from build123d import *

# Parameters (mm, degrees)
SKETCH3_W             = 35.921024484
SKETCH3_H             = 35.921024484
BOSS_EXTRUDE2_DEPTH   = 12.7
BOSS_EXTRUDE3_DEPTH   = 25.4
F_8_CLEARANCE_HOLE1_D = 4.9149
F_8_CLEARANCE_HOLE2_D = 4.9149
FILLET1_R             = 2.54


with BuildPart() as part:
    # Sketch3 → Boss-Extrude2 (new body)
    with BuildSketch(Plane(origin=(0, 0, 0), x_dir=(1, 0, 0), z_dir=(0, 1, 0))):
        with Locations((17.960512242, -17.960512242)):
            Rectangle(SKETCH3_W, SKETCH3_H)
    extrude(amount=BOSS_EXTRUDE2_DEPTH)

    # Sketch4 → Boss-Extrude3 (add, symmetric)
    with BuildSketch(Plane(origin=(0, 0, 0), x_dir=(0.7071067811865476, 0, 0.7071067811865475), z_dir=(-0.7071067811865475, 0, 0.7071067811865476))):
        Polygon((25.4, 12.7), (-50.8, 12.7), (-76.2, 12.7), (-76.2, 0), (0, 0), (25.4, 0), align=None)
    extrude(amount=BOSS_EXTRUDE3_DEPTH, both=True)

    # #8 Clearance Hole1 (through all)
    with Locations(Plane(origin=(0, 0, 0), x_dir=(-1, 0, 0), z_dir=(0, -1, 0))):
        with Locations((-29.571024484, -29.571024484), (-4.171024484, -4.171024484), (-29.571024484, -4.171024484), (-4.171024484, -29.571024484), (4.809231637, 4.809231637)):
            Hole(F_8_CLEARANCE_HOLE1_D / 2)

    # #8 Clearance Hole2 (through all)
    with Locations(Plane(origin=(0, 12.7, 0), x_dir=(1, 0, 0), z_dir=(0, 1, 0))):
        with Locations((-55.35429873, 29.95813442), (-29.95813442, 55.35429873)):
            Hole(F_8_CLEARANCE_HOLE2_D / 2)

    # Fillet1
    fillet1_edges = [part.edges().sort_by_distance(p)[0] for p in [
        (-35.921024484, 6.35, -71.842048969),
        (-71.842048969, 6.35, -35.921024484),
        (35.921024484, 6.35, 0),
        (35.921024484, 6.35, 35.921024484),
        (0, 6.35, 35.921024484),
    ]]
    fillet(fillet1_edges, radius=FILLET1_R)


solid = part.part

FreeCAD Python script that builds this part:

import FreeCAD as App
import Part
import Sketcher
from FreeCAD import Vector
Q = App.Units.Quantity


def edges_at(feature, points):
    """Names of the edges that pass closest to the given points."""
    edges = feature.Shape.Edges
    near = lambda p: min(range(len(edges)), key=lambda i: edges[i].distToShape(Part.Vertex(*p))[0])
    return sorted({f"Edge{near(p) + 1}" for p in points})

doc = App.newDocument("Part")
body = doc.addObject("PartDesign::Body", "Body")

# Sketch on XZ plane
sketch1 = body.newObject("Sketcher::SketchObject", "Sketch")
sketch1.AttachmentSupport = (doc.getObject("XZ_Plane"), [""])
sketch1.MapMode = "FlatFace"
sketch1.addGeometry([
    Part.LineSegment(Vector(0, 0, 0), Vector(0, 36, 0)),
    Part.LineSegment(Vector(0, 36, 0), Vector(36, 36, 0)),
    Part.LineSegment(Vector(36, 36, 0), Vector(36, 0, 0)),
    Part.LineSegment(Vector(36, 0, 0), Vector(0, 0, 0)),
], False)
sketch1.addConstraint([
    Sketcher.Constraint("Coincident", 0, 2, 1, 1),
    Sketcher.Constraint("Coincident", 1, 2, 2, 1),
    Sketcher.Constraint("Coincident", 2, 2, 3, 1),
    Sketcher.Constraint("Coincident", 3, 2, 0, 1),
    Sketcher.Constraint("Vertical", 0),
    Sketcher.Constraint("Horizontal", 1),
    Sketcher.Constraint("Vertical", 2),
    Sketcher.Constraint("Horizontal", 3),
    Sketcher.Constraint("Coincident", 3, 2, -1, 1),
    Sketcher.Constraint("Equal", 3, 0),
    Sketcher.Constraint("DistanceX", 1, 1, 1, 2, 35.921024),
])
pad1 = body.newObject("PartDesign::Pad", "Pad")
pad1.Profile = sketch1
pad1.Length = Q("0.5 in")
pad1.Reversed = True

# Sketch on an angled plane
sketch2 = body.newObject("Sketcher::SketchObject", "Sketch001")
sketch2.Placement = App.Placement(Vector(0, 0, 0), App.Rotation(Vector(0.707106781, 0, 0.707106781), Vector(0, 0.999999999, 0), Vector(-0.707106781, 0, 0.707106781), "ZXY"))
sketch2.addGeometry([
    Part.LineSegment(Vector(25, 13, 0), Vector(-76, 13, 0)),
    Part.LineSegment(Vector(-76, 13, 0), Vector(-76, 0, 0)),
    Part.LineSegment(Vector(-76, 0, 0), Vector(25, 0, 0)),
    Part.LineSegment(Vector(25, 0, 0), Vector(25, 13, 0)),
], False)
sketch2.addConstraint([
    Sketcher.Constraint("Coincident", 0, 2, 1, 1),
    Sketcher.Constraint("Coincident", 1, 2, 2, 1),
    Sketcher.Constraint("Coincident", 2, 2, 3, 1),
    Sketcher.Constraint("Coincident", 3, 2, 0, 1),
    Sketcher.Constraint("Horizontal", 0),
    Sketcher.Constraint("Vertical", 1),
    Sketcher.Constraint("Horizontal", 2),
    Sketcher.Constraint("Vertical", 3),
    Sketcher.Constraint("PointOnObject", 1, 2, -1),
    Sketcher.Constraint("DistanceX", 0, 2, 0, 1, Q("4 in")),
    Sketcher.Constraint("DistanceY", 1, 2, 1, 1, Q("0.5 in")),
    Sketcher.Constraint("DistanceX", 0, 2, -1, 1, Q("3 in")),
])
pad2 = body.newObject("PartDesign::Pad", "Pad001")
pad2.Profile = sketch2
pad2.Length = Q("2 in")
pad2.Midplane = True

# Sketch on XZ plane
sketch3 = body.newObject("Sketcher::SketchObject", "Sketch002")
sketch3.AttachmentSupport = (doc.getObject("XZ_Plane"), [""])
sketch3.MapMode = "FlatFace"
sketch3.addGeometry([
    Part.Circle(Vector(29.6, 29.6, 0), Vector(0, 0, 1), 2.5),  # 0
    Part.Circle(Vector(4.2, 4.2, 0), Vector(0, 0, 1), 2.5),  # 1
    Part.Circle(Vector(29.6, 4.2, 0), Vector(0, 0, 1), 2.5),  # 2
    Part.Circle(Vector(4.2, 29.6, 0), Vector(0, 0, 1), 2.5),  # 3
    Part.Circle(Vector(-4.8, -4.8, 0), Vector(0, 0, 1), 2.5),  # 4
], False)
sketch3.addConstraint([
    Sketcher.Constraint("Equal", 0, 1),
    Sketcher.Constraint("Equal", 1, 2),
    Sketcher.Constraint("Equal", 2, 3),
    Sketcher.Constraint("Equal", 3, 4),
    Sketcher.Constraint("Horizontal", 1, 3, 2, 3),
    Sketcher.Constraint("Horizontal", 0, 3, 3, 3),
    Sketcher.Constraint("Vertical", 0, 3, 2, 3),
    Sketcher.Constraint("Vertical", 1, 3, 3, 3),
    Sketcher.Constraint("DistanceX", 1, 3, 0, 3, Q("1 in")),
    Sketcher.Constraint("DistanceY", 1, 3, 0, 3, Q("1 in")),
    Sketcher.Constraint("Diameter", 0, Q("0.1935 in")),
    Sketcher.Constraint("DistanceX", 4, 3, -1, 1, 4.809232),
    Sketcher.Constraint("DistanceY", 4, 3, -1, 1, 4.809232),
    Sketcher.Constraint("DistanceX", -1, 1, 0, 3, 29.571024),
    Sketcher.Constraint("DistanceY", -1, 1, 0, 3, 29.571024),
])
doc.recompute()
hole = body.newObject("PartDesign::Hole", "Hole")
hole.Profile = sketch3
hole.ThreadType = "None"
hole.Diameter = Q("0.1935 in")
hole.DepthType = "ThroughAll"

# Sketch on XZ plane
sketch4 = body.newObject("Sketcher::SketchObject", "Sketch003")
sketch4.AttachmentSupport = (doc.getObject("XZ_Plane"), [""])
sketch4.MapMode = "FlatFace"
sketch4.AttachmentOffset = App.Placement(Vector(0, 0, -0.5 * 25.4), App.Rotation())
sketch4.addGeometry([
    Part.Circle(Vector(-55.4, -30, 0), Vector(0, 0, 1), 2.5),
    Part.Circle(Vector(-30, -55.4, 0), Vector(0, 0, 1), 2.5),
], False)
sketch4.addConstraint([
    Sketcher.Constraint("Equal", 0, 1),
    Sketcher.Constraint("Diameter", 0, Q("0.1935 in")),
    Sketcher.Constraint("DistanceX", 0, 3, -1, 1, 55.354299),
    Sketcher.Constraint("DistanceY", 1, 3, -1, 1, 55.354299),
    Sketcher.Constraint("DistanceY", 0, 3, -1, 1, 29.958134),
    Sketcher.Constraint("DistanceX", 1, 3, -1, 1, 29.958134),
])
doc.recompute()
hole2 = body.newObject("PartDesign::Hole", "Hole001")
hole2.Profile = sketch4
hole2.ThreadType = "None"
hole2.Diameter = Q("0.1935 in")
hole2.DepthType = "ThroughAll"
hole2.Reversed = True
doc.recompute()

fillet = body.newObject("PartDesign::Fillet", "Fillet")
fillet.Base = (hole2, edges_at(hole2, [
    (-35.921, 6.35, -71.842),
    (-71.842, 6.35, -35.921),
    (35.921, 6.35, 0),
    (35.921, 6.35, 35.921),
    (0, 6.35, 35.921),
]))
fillet.Radius = Q("0.1 in")

doc.recompute()
